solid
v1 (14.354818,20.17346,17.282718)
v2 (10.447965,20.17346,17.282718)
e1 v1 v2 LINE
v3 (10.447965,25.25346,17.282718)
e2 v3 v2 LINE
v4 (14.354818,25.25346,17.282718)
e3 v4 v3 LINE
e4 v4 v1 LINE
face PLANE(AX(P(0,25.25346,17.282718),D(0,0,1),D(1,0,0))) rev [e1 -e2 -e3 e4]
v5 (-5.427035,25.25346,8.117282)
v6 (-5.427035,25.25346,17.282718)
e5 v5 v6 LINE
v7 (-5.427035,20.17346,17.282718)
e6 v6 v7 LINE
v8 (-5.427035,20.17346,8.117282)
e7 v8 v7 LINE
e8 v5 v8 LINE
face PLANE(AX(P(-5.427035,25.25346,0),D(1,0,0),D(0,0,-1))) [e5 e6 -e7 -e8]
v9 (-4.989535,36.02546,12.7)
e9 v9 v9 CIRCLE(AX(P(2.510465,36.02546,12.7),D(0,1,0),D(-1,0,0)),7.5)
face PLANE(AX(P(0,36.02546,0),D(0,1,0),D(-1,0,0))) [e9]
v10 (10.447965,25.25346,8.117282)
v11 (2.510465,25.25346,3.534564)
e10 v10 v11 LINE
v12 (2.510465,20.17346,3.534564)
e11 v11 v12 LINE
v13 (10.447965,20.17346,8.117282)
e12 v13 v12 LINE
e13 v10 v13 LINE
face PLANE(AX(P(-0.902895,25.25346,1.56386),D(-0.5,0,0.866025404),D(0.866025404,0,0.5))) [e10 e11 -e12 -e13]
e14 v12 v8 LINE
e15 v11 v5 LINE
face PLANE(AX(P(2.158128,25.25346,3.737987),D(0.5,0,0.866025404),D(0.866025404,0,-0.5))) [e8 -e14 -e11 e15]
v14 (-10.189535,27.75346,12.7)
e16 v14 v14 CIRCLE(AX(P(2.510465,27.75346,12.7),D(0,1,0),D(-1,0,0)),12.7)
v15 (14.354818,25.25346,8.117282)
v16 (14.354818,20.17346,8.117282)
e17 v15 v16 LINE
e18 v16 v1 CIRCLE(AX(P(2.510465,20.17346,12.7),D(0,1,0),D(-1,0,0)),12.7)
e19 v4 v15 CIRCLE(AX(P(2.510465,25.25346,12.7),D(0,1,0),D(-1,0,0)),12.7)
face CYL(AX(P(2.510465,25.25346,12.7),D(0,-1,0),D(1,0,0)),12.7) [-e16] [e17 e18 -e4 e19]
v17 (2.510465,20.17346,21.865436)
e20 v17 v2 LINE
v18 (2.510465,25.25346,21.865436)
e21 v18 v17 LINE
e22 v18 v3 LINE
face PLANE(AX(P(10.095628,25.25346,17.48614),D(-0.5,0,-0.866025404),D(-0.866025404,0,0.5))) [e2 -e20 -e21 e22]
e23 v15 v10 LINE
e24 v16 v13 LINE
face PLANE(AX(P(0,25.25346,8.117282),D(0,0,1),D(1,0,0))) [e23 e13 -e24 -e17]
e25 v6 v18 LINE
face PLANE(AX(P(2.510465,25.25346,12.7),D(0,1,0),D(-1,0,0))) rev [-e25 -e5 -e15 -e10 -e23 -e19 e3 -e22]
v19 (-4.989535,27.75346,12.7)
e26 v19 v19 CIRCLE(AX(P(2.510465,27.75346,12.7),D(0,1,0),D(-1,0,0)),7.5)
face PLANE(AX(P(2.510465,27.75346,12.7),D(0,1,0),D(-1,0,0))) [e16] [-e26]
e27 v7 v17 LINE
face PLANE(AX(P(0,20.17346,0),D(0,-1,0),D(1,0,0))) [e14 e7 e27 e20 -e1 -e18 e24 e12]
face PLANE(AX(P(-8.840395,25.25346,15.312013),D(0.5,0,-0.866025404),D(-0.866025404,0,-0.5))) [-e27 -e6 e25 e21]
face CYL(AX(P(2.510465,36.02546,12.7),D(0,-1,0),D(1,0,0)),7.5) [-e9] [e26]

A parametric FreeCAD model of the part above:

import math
import FreeCAD as App
import Part
import Sketcher
from FreeCAD import Vector
Q = App.Units.Quantity


def add_polygon(sketch, points):
    """Adds a closed chain of lines whose ends are joined by coincident constraints."""
    first, n = sketch.GeometryCount, len(points)
    for a, b in zip(points, points[1:] + points[:1]):
        sketch.addGeometry(Part.LineSegment(App.Vector(*a, 0), App.Vector(*b, 0)), False)
    for i in range(n):
        sketch.addConstraint(Sketcher.Constraint("Coincident", first + i, 2, first + (i + 1) % n, 1))

doc = App.newDocument("Part")
body = doc.addObject("PartDesign::Body", "Body")

# Sketch on XY plane
sketch1 = body.newObject("Sketcher::SketchObject", "Sketch")
sketch1.AttachmentSupport = (doc.getObject("XY_Plane"), [""])
sketch1.MapMode = "FlatFace"
add_polygon(sketch1, [(-10, 0), (-10, 9), (15, 9), (15, 0), (21, 0), (21, 20), (-16, 20), (-16, 0)])  # lines 0-7
sketch1.addConstraint([
    Sketcher.Constraint("Vertical", 0),
    Sketcher.Constraint("Horizontal", 1),
    Sketcher.Constraint("Vertical", 2),
    Sketcher.Constraint("Horizontal", 3),
    Sketcher.Constraint("Vertical", 4),
    Sketcher.Constraint("Horizontal", 5),
    Sketcher.Constraint("Vertical", 6),
    Sketcher.Constraint("Horizontal", 7),
    Sketcher.Constraint("PointOnObject", 2, 2, -1),
    Sketcher.Constraint("PointOnObject", 6, 2, -1),
    Sketcher.Constraint("Equal", 3, 7),
    Sketcher.Constraint("DistanceX", 3, 1, 3, 2, Q("6 mm")),
    Sketcher.Constraint("DistanceY", 0, 1, 0, 2, Q("9 mm")),
    Sketcher.Constraint("DistanceX", 1, 1, 1, 2, Q("25.4 mm")),
    Sketcher.Constraint("DistanceY", 4, 1, 4, 2, Q("20.17346 mm")),
    Sketcher.Constraint("DistanceX", 0, 2, -1, 1, Q("10.189535 mm")),
])
pad1 = body.newObject("PartDesign::Pad", "Pad")
pad1.Profile = sketch1
pad1.Length = 25.4

# Sketch on XZ plane
sketch2 = body.newObject("Sketcher::SketchObject", "Sketch001")
sketch2.AttachmentSupport = (doc.getObject("XZ_Plane"), [""])
sketch2.MapMode = "FlatFace"
sketch2.AttachmentOffset = App.Placement(Vector(0, 0, -20.17346), App.Rotation())
sketch2.addGeometry([
    Part.LineSegment(Vector(14.4, 17.3, 0), Vector(10.4, 17.3, 0)),  # 0
    Part.LineSegment(Vector(10.4, 17.3, 0), Vector(2.5, 21.9, 0)),  # 1
    Part.LineSegment(Vector(2.5, 21.9, 0), Vector(-5.4, 17.3, 0)),  # 2
    Part.LineSegment(Vector(-5.4, 17.3, 0), Vector(-5.4, 8.1, 0)),  # 3
    Part.LineSegment(Vector(-5.4, 8.1, 0), Vector(2.5, 3.5, 0)),  # 4
    Part.LineSegment(Vector(2.5, 3.5, 0), Vector(10.4, 8.1, 0)),  # 5
    Part.LineSegment(Vector(10.4, 8.1, 0), Vector(14.4, 8.1, 0)),  # 6
    Part.ArcOfCircle(Part.Circle(Vector(2.5, 12.7, 0), Vector(0, 0, 1), 12.7), math.radians(21), math.radians(339)),  # 7
], False)
sketch2.addConstraint([
    Sketcher.Constraint("Coincident", 0, 2, 1, 1),
    Sketcher.Constraint("Coincident", 1, 2, 2, 1),
    Sketcher.Constraint("Coincident", 2, 2, 3, 1),
    Sketcher.Constraint("Coincident", 3, 2, 4, 1),
    Sketcher.Constraint("Coincident", 4, 2, 5, 1),
    Sketcher.Constraint("Coincident", 5, 2, 6, 1),
    Sketcher.Constraint("Coincident", 6, 2, 7, 2),
    Sketcher.Constraint("Coincident", 7, 1, 0, 1),
    Sketcher.Constraint("Horizontal", 0),
    Sketcher.Constraint("Vertical", 3),
    Sketcher.Constraint("Horizontal", 6),
    Sketcher.Constraint("Parallel", 1, 4),
    Sketcher.Constraint("Parallel", 2, 5),
    Sketcher.Constraint("Horizontal", 0, 2, 2, 2),
    Sketcher.Constraint("Horizontal", 3, 2, 5, 2),
    Sketcher.Constraint("Vertical", 7, 3, 1, 2),
    Sketcher.Constraint("Vertical", 1, 2, 4, 2),
    Sketcher.Constraint("Vertical", 0, 2, 5, 2),
    Sketcher.Constraint("Vertical", 6, 2, 7, 1),
    Sketcher.Constraint("Radius", 7, Q("12.7 mm")),
    Sketcher.Constraint("Angle", 1, Q("150 deg")),
    Sketcher.Constraint("DistanceY", -1, 1, 7, 3, Q("12.7 mm")),
    Sketcher.Constraint("DistanceX", 2, 2, 0, 2, Q("15.875 mm")),
    Sketcher.Constraint("DistanceX", 0, 2, 0, 1, Q("3.906853 mm")),
    Sketcher.Constraint("DistanceX", -1, 1, 6, 2, Q("14.354818 mm")),
])
pad2 = body.newObject("PartDesign::Pad", "Pad001")
pad2.Profile = sketch2
pad2.Length = 5.08
pad2.Reversed = True

# Sketch on XZ plane
sketch3 = body.newObject("Sketcher::SketchObject", "Sketch002")
sketch3.AttachmentSupport = (doc.getObject("XZ_Plane"), [""])
sketch3.MapMode = "FlatFace"
sketch3.AttachmentOffset = App.Placement(Vector(0, 0, -20.17346), App.Rotation())
add_polygon(sketch3, [(-16, 0), (-16, 25), (21, 25), (21, 0)])  # lines 0-3
sketch3.addConstraint([
    Sketcher.Constraint("Vertical", 0),
    Sketcher.Constraint("Horizontal", 1),
    Sketcher.Constraint("Vertical", 2),
    Sketcher.Constraint("Horizontal", 3),
    Sketcher.Constraint("PointOnObject", 2, 2, -1),
    Sketcher.Constraint("DistanceX", 1, 1, 1, 2, Q("37.4 mm")),
    Sketcher.Constraint("DistanceY", 0, 1, 0, 2, Q("25.4 mm")),
    Sketcher.Constraint("DistanceX", 0, 2, -1, 1, Q("16.189535 mm")),
])
pocket1 = body.newObject("PartDesign::Pocket", "Pocket")
pocket1.Profile = sketch3
pocket1.Length = 25.4
pocket1.Reversed = True

# Sketch on XZ plane
sketch4 = body.newObject("Sketcher::SketchObject", "Sketch003")
sketch4.AttachmentSupport = (doc.getObject("XZ_Plane"), [""])
sketch4.MapMode = "FlatFace"
sketch4.AttachmentOffset = App.Placement(Vector(0, 0, -25.25346), App.Rotation())
sketch4.addGeometry(Part.Circle(Vector(3, 13, 0), Vector(0, 0, 1), 13), False)
sketch4.addConstraint([
    Sketcher.Constraint("Diameter", 0, Q("25.4 mm")),
    Sketcher.Constraint("DistanceY", -1, 1, 0, 3, Q("12.7 mm")),
    Sketcher.Constraint("DistanceX", -1, 1, 0, 3, Q("2.510465 mm")),
])
pad3 = body.newObject("PartDesign::Pad", "Pad002")
pad3.Profile = sketch4
pad3.Length = 2.5
pad3.Reversed = True

# Sketch on XZ plane
sketch5 = body.newObject("Sketcher::SketchObject", "Sketch004")
sketch5.AttachmentSupport = (doc.getObject("XZ_Plane"), [""])
sketch5.MapMode = "FlatFace"
sketch5.AttachmentOffset = App.Placement(Vector(0, 0, -27.75346), App.Rotation())
sketch5.addGeometry(Part.Circle(Vector(3, 13, 0), Vector(0, 0, 1), 8), False)
sketch5.addConstraint([
    Sketcher.Constraint("Diameter", 0, Q("15 mm")),
    Sketcher.Constraint("DistanceY", -1, 1, 0, 3, Q("12.7 mm")),
    Sketcher.Constraint("DistanceX", -1, 1, 0, 3, Q("2.510465 mm")),
])
pad4 = body.newObject("PartDesign::Pad", "Pad003")
pad4.Profile = sketch5
pad4.Length = 8.272
pad4.Reversed = True

doc.recompute()
